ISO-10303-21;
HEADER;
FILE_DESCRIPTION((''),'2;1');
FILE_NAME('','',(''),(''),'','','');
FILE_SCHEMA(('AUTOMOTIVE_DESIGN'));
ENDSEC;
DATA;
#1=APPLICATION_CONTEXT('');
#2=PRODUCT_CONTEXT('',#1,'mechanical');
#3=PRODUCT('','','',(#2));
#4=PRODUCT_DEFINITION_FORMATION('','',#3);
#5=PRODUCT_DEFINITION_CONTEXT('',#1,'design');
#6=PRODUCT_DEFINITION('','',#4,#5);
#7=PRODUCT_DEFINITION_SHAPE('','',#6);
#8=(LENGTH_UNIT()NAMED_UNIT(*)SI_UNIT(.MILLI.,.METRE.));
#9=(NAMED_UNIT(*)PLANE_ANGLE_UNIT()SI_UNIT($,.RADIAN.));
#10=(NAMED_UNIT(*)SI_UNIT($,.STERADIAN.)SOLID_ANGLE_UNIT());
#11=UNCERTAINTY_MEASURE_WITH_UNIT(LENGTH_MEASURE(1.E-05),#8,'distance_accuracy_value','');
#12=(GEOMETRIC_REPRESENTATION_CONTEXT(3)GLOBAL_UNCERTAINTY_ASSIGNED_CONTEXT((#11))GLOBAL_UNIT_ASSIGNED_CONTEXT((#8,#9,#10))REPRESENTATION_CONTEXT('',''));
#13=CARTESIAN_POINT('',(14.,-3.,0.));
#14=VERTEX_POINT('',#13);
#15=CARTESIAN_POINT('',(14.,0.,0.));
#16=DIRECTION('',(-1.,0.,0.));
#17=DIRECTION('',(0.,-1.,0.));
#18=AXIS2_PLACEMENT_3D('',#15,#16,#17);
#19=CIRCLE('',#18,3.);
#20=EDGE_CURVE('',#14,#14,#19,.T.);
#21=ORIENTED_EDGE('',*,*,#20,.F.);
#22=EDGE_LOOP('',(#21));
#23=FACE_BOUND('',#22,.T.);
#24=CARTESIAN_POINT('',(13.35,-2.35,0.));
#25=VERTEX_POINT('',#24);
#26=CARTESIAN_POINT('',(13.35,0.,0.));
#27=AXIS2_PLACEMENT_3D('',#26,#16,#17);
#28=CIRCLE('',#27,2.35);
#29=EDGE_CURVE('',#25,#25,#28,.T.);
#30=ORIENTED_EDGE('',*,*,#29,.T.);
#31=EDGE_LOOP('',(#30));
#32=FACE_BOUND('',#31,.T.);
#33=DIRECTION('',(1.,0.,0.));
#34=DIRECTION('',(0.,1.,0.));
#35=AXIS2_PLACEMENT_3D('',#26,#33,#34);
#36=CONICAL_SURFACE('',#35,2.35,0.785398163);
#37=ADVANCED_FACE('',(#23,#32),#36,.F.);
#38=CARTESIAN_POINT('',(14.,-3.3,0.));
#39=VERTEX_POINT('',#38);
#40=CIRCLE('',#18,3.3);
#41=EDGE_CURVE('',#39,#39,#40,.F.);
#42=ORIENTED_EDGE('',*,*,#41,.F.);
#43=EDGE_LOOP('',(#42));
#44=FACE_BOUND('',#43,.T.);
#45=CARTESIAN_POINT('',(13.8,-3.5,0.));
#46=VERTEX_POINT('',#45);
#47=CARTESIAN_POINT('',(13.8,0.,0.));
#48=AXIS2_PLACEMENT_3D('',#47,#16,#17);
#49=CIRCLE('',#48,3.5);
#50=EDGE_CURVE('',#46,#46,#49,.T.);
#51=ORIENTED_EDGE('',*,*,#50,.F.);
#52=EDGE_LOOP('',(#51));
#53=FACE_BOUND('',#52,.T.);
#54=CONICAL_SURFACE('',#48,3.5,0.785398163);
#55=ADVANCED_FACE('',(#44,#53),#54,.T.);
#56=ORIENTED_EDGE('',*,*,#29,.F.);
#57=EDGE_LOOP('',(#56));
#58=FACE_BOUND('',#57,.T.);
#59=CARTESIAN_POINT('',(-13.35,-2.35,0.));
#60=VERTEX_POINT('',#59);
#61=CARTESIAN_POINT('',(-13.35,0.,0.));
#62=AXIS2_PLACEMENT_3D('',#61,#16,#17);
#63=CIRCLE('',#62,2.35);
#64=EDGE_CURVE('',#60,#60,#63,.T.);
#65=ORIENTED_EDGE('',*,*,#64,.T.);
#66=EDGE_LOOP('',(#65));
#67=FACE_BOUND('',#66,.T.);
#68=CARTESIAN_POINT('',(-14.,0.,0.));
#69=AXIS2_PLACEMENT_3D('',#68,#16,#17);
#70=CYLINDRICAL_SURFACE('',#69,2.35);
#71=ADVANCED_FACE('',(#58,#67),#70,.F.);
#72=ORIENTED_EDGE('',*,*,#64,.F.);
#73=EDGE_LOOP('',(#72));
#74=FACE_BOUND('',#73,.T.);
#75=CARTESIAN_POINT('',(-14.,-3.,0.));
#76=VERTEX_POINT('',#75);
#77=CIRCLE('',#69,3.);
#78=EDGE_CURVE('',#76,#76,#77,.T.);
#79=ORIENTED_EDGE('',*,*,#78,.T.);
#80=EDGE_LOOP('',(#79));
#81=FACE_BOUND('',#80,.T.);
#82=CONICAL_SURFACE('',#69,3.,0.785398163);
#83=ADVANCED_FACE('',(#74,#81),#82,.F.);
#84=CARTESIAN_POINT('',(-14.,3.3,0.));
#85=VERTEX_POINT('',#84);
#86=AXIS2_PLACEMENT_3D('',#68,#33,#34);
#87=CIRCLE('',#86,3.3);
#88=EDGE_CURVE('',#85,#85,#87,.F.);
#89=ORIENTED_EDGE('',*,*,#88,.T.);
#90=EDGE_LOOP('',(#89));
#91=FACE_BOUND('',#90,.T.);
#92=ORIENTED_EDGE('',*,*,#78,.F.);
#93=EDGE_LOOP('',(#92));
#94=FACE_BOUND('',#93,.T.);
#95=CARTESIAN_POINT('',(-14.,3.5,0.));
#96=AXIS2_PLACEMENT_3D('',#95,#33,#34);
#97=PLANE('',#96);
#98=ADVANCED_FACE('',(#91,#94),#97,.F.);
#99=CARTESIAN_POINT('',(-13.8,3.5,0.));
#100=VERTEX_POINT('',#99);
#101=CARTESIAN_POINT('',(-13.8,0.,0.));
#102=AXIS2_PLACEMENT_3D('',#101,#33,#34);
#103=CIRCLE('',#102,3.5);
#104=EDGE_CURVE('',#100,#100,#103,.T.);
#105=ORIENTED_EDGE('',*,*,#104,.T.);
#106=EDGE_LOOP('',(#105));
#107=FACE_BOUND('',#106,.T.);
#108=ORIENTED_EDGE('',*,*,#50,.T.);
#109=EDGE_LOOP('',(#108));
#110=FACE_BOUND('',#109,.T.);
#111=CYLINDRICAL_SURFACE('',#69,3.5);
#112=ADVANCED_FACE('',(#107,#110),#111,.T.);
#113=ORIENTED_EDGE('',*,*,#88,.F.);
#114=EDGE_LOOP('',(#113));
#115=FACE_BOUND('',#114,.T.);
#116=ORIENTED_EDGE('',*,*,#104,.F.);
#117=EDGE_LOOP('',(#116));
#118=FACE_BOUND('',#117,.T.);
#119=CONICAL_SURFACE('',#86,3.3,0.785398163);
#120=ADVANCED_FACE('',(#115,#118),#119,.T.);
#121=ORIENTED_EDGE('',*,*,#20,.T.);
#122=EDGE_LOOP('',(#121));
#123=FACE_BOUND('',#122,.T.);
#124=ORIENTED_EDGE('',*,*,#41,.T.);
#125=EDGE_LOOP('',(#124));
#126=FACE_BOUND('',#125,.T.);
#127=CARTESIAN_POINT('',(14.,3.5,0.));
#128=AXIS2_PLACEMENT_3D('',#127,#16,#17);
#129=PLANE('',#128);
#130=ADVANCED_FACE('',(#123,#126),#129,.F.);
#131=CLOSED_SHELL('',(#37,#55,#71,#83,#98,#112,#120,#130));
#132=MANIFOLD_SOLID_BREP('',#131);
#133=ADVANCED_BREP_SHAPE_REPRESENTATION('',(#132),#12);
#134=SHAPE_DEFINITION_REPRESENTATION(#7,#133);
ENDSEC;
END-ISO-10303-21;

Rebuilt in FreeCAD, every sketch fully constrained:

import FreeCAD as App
import Part
import Sketcher
Q = App.Units.Quantity


def edges_at(feature, points):
    """Names of the edges that pass closest to the given points."""
    edges = feature.Shape.Edges
    near = lambda p: min(range(len(edges)), key=lambda i: edges[i].distToShape(Part.Vertex(*p))[0])
    return sorted({f"Edge{near(p) + 1}" for p in points})


def add_polygon(sketch, points):
    """Adds a closed chain of lines whose ends are joined by coincident constraints."""
    first, n = sketch.GeometryCount, len(points)
    for a, b in zip(points, points[1:] + points[:1]):
        sketch.addGeometry(Part.LineSegment(App.Vector(*a, 0), App.Vector(*b, 0)), False)
    for i in range(n):
        sketch.addConstraint(Sketcher.Constraint("Coincident", first + i, 2, first + (i + 1) % n, 1))

doc = App.newDocument("Part")
body = doc.addObject("PartDesign::Body", "Body")

sketch1 = doc.addObject("Sketcher::SketchObject", "Sketch")
body.addObject(sketch1)
sketch1.AttachmentSupport = (doc.XY_Plane, [""])
sketch1.MapMode = "FlatFace"
add_polygon(sketch1, [(-14, 3), (-13.35, 2.35), (13.35, 2.35), (14, 3), (14, 3.5), (-14, 3.5)])
sketch1.addConstraint(Sketcher.Constraint("Horizontal", 1))
sketch1.addConstraint(Sketcher.Constraint("Vertical", 3))
sketch1.addConstraint(Sketcher.Constraint("Horizontal", 4))
sketch1.addConstraint(Sketcher.Constraint("Vertical", 5))
sketch1.addConstraint(Sketcher.Constraint("Symmetric", 2, 2, 5, 2, -2))
sketch1.addConstraint(Sketcher.Constraint("Perpendicular", 0, 2))
sketch1.addConstraint(Sketcher.Constraint("Equal", 0, 2))
sketch1.addConstraint(Sketcher.Constraint("DistanceX", 4, 2, 4, 1, Q("28 mm")))
sketch1.addConstraint(Sketcher.Constraint("DistanceX", 1, 1, 1, 2, Q("26.7 mm")))
sketch1.addConstraint(Sketcher.Constraint("DistanceY", 3, 1, 3, 2, Q("0.5 mm")))
sketch1.addConstraint(Sketcher.Constraint("DistanceY", -1, 1, 2, 2, Q("3 mm")))
revolution = doc.addObject("PartDesign::Revolution", "Revolution")
body.addObject(revolution)
revolution.Profile = sketch1
revolution.ReferenceAxis = (sketch1, ["H_Axis"])
revolution.Angle = 360
doc.recompute()

chamfer = doc.addObject("PartDesign::Chamfer", "Chamfer")
body.addObject(chamfer)
chamfer.Base = (revolution, edges_at(revolution, [(-14, 3.5, 0), (14, 3.5, 0)]))
chamfer.Size = 0.2

doc.recompute()
